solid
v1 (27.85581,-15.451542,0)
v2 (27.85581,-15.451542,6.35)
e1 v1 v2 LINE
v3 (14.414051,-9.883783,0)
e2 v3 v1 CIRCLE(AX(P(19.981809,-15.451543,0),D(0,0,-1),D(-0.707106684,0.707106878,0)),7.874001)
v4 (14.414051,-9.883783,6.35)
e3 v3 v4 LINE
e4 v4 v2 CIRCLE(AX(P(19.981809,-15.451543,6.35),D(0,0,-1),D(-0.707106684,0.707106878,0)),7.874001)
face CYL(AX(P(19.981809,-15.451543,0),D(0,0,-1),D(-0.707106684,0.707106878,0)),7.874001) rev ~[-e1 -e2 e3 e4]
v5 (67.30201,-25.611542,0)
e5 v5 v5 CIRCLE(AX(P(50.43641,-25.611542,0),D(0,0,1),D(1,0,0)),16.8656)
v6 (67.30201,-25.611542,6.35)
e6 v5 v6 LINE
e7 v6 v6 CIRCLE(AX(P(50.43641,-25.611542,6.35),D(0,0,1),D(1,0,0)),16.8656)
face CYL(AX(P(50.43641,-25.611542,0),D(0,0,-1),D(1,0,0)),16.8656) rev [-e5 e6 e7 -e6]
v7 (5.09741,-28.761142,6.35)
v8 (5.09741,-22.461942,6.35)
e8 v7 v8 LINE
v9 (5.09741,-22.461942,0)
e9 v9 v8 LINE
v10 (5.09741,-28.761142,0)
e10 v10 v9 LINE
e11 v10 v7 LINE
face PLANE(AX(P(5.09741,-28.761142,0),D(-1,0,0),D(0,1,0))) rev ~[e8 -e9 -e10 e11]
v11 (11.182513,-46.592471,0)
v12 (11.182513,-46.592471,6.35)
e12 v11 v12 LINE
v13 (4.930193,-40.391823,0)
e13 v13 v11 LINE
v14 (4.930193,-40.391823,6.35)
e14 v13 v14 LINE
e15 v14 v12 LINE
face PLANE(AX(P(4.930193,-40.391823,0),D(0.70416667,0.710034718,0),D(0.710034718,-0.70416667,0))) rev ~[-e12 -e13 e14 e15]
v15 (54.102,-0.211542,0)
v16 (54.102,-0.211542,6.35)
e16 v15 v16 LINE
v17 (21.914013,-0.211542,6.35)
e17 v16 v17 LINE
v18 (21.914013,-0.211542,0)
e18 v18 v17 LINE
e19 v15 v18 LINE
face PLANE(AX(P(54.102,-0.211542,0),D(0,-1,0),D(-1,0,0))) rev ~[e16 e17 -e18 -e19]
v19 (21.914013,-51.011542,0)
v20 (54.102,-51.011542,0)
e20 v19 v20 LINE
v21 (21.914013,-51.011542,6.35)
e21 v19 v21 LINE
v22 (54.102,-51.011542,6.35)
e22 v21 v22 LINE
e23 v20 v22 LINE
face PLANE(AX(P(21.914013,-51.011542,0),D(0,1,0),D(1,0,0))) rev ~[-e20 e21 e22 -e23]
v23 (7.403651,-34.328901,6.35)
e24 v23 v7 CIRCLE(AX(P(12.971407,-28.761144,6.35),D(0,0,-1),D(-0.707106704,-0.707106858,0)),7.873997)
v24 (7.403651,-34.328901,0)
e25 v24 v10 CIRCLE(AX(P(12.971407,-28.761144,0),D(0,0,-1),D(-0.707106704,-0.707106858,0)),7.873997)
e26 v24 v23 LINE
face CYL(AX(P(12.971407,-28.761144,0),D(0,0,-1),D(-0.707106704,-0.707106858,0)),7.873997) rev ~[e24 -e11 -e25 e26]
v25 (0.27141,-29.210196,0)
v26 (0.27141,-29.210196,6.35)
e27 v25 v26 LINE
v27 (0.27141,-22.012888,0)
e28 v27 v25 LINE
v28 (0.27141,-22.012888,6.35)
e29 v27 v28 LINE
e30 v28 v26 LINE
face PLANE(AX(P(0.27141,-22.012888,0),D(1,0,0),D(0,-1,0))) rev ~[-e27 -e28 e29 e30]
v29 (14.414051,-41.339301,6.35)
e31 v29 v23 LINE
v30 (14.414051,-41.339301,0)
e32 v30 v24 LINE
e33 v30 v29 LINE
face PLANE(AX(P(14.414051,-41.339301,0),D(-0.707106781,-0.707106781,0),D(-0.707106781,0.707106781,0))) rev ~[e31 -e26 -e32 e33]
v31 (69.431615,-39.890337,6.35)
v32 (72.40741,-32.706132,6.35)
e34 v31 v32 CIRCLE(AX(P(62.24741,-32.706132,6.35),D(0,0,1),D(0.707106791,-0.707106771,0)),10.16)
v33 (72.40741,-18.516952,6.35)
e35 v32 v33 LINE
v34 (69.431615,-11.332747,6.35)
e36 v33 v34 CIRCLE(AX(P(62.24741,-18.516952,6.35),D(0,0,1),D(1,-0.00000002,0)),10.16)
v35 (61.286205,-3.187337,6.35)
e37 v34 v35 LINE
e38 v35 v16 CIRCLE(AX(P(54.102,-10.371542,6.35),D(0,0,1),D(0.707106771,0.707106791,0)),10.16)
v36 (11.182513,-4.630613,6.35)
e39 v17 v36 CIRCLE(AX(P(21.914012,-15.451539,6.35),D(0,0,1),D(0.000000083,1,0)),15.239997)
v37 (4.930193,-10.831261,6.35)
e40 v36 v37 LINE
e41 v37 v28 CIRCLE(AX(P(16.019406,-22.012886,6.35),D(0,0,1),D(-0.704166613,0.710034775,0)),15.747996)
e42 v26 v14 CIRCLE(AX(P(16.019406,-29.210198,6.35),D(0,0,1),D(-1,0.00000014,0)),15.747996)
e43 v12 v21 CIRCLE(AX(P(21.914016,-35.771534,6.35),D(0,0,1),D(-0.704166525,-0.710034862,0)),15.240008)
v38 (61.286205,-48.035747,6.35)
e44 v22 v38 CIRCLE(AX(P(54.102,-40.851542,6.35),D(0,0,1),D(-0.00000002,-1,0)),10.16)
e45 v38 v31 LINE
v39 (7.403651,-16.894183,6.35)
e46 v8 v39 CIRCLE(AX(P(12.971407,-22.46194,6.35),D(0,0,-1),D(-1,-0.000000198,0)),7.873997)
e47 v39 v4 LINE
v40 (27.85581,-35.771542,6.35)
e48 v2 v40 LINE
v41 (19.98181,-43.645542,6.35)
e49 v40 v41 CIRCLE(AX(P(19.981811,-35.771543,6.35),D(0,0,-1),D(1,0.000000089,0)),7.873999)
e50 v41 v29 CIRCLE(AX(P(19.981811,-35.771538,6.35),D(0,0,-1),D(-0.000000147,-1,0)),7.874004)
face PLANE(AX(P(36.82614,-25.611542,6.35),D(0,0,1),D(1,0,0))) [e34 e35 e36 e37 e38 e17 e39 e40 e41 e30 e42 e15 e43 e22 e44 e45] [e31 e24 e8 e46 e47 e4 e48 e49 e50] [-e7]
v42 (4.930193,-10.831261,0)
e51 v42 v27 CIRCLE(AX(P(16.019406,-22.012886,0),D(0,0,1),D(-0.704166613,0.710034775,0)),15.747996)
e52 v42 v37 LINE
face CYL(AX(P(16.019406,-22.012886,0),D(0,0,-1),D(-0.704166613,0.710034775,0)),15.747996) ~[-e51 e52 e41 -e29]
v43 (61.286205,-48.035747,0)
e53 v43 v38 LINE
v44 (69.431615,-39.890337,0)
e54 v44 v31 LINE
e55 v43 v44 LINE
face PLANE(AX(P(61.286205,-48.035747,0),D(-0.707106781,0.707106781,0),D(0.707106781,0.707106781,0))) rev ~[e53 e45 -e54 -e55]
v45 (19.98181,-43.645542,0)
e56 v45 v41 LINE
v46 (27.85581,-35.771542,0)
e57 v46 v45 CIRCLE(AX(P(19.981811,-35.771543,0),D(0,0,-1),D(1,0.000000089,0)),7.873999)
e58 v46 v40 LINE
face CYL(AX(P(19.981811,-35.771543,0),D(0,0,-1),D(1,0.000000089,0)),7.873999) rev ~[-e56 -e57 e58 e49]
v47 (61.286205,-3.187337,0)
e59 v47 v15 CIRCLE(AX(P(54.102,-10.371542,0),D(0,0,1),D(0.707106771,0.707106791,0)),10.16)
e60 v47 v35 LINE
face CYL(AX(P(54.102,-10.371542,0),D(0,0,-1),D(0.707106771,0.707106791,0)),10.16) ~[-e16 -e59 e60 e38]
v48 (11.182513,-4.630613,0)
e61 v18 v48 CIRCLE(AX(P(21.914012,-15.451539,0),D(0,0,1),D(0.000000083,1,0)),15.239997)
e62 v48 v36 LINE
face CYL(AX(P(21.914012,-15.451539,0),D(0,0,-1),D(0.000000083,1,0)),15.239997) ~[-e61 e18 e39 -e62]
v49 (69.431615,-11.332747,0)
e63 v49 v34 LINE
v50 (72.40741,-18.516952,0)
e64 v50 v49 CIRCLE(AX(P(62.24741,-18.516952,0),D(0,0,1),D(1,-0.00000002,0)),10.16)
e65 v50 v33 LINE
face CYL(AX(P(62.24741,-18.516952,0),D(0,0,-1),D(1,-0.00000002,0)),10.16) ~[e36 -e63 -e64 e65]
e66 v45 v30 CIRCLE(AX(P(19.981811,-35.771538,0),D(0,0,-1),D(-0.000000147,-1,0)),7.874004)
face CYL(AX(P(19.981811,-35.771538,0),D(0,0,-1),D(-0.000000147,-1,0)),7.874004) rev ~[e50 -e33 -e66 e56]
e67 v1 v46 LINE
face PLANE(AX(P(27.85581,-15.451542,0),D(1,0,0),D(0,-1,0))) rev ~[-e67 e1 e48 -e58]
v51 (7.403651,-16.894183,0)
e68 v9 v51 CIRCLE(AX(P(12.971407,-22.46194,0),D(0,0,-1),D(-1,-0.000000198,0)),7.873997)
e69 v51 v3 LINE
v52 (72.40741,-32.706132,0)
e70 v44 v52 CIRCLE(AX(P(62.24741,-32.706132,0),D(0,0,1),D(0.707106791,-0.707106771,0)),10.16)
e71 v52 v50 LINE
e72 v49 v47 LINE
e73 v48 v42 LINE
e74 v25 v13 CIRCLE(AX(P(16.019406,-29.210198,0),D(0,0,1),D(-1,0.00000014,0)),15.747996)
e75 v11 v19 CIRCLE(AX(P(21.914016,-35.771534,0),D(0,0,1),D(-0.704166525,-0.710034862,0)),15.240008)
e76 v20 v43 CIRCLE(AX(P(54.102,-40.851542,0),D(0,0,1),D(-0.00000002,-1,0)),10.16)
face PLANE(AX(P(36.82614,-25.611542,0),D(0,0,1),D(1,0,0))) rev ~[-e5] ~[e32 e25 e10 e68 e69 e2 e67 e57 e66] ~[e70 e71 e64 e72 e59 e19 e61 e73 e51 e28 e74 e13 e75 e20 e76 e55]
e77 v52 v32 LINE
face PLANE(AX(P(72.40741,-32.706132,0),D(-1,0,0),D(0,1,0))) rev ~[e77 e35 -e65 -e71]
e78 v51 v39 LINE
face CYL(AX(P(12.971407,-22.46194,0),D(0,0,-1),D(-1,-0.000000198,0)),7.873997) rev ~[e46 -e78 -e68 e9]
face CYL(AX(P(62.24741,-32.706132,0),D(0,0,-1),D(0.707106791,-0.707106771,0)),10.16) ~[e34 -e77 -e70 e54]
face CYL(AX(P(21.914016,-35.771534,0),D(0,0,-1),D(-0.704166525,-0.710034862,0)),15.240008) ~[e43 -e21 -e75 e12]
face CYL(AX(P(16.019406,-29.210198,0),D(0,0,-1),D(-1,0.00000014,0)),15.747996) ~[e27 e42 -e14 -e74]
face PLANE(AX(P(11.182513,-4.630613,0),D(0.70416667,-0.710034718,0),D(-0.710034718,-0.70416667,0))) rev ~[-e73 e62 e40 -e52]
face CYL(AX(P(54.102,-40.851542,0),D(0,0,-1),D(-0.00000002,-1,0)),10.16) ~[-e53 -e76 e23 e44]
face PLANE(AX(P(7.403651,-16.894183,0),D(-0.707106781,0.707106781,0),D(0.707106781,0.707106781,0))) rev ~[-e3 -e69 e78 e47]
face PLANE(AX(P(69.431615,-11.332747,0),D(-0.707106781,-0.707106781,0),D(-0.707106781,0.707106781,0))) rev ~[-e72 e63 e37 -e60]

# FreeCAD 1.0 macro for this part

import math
import FreeCAD as App
import Part
import Sketcher
from FreeCAD import Vector
Q = App.Units.Quantity

doc = App.newDocument("Part")
body = doc.addObject("PartDesign::Body", "Body")

sketch1 = doc.addObject("Sketcher::SketchObject", "Sketch")
body.addObject(sketch1)
sketch1.AttachmentSupport = (doc.XY_Plane, [""])
sketch1.MapMode = "FlatFace"
sketch1.addGeometry(Part.ArcOfCircle(Part.Circle(Vector(62, -33, 0), Vector(0, 0, 1), 10), math.radians(-45), math.radians(0)), False)
sketch1.addGeometry(Part.LineSegment(Vector(72, -33, 0), Vector(72, -19, 0)), False)
sketch1.addGeometry(Part.ArcOfCircle(Part.Circle(Vector(62, -19, 0), Vector(0, 0, 1), 10), math.radians(0), math.radians(45)), False)
sketch1.addGeometry(Part.LineSegment(Vector(69, -11, 0), Vector(61, -3, 0)), False)
sketch1.addGeometry(Part.ArcOfCircle(Part.Circle(Vector(54, -10, 0), Vector(0, 0, 1), 10), math.radians(45), math.radians(90)), False)
sketch1.addGeometry(Part.LineSegment(Vector(54, 0, 0), Vector(22, 0, 0)), False)
sketch1.addGeometry(Part.ArcOfCircle(Part.Circle(Vector(22, -15, 0), Vector(0, 0, 1), 15), math.radians(90), math.radians(135)), False)
sketch1.addGeometry(Part.LineSegment(Vector(11, -5, 0), Vector(5, -11, 0)), False)
sketch1.addGeometry(Part.ArcOfCircle(Part.Circle(Vector(16, -22, 0), Vector(0, 0, 1), 16), math.radians(135), math.radians(180)), False)
sketch1.addGeometry(Part.LineSegment(Vector(0, -22, 0), Vector(0, -29, 0)), False)
sketch1.addGeometry(Part.ArcOfCircle(Part.Circle(Vector(16, -29, 0), Vector(0, 0, 1), 16), math.radians(180), math.radians(225)), False)
sketch1.addGeometry(Part.LineSegment(Vector(5, -40, 0), Vector(11, -47, 0)), False)
sketch1.addGeometry(Part.ArcOfCircle(Part.Circle(Vector(22, -36, 0), Vector(0, 0, 1), 15), math.radians(-135), math.radians(-90)), False)
sketch1.addGeometry(Part.LineSegment(Vector(22, -51, 0), Vector(54, -51, 0)), False)
sketch1.addGeometry(Part.ArcOfCircle(Part.Circle(Vector(54, -41, 0), Vector(0, 0, 1), 10), math.radians(-90), math.radians(-45)), False)
sketch1.addGeometry(Part.LineSegment(Vector(61, -48, 0), Vector(69, -40, 0)), False)
sketch1.addGeometry(Part.ArcOfCircle(Part.Circle(Vector(20, -15, 0), Vector(0, 0, 1), 8), math.radians(0), math.radians(135)), False)
sketch1.addGeometry(Part.LineSegment(Vector(28, -15, 0), Vector(28, -36, 0)), False)
sketch1.addGeometry(Part.ArcOfCircle(Part.Circle(Vector(20, -36, 0), Vector(0, 0, 1), 8), math.radians(-90), math.radians(0)), False)
sketch1.addGeometry(Part.ArcOfCircle(Part.Circle(Vector(20, -36, 0), Vector(0, 0, 1), 8), math.radians(-135), math.radians(-90)), False)
sketch1.addGeometry(Part.LineSegment(Vector(14, -41, 0), Vector(7, -34, 0)), False)
sketch1.addGeometry(Part.ArcOfCircle(Part.Circle(Vector(13, -29, 0), Vector(0, 0, 1), 8), math.radians(180), math.radians(225)), False)
sketch1.addGeometry(Part.LineSegment(Vector(5, -29, 0), Vector(5, -22, 0)), False)
sketch1.addGeometry(Part.ArcOfCircle(Part.Circle(Vector(13, -22, 0), Vector(0, 0, 1), 8), math.radians(135), math.radians(180)), False)
sketch1.addGeometry(Part.LineSegment(Vector(7, -17, 0), Vector(14, -10, 0)), False)
sketch1.addGeometry(Part.Circle(Vector(50, -26, 0), Vector(0, 0, 1), 17), False)
sketch1.addConstraint(Sketcher.Constraint("Tangent", 0, 2, 1, 1))
sketch1.addConstraint(Sketcher.Constraint("Tangent", 1, 2, 2, 1))
sketch1.addConstraint(Sketcher.Constraint("Tangent", 2, 2, 3, 1))
sketch1.addConstraint(Sketcher.Constraint("Tangent", 3, 2, 4, 1))
sketch1.addConstraint(Sketcher.Constraint("Tangent", 4, 2, 5, 1))
sketch1.addConstraint(Sketcher.Constraint("Tangent", 5, 2, 6, 1))
sketch1.addConstraint(Sketcher.Constraint("Tangent", 6, 2, 7, 1))
sketch1.addConstraint(Sketcher.Constraint("Tangent", 7, 2, 8, 1))
sketch1.addConstraint(Sketcher.Constraint("Tangent", 8, 2, 9, 1))
sketch1.addConstraint(Sketcher.Constraint("Tangent", 9, 2, 10, 1))
sketch1.addConstraint(Sketcher.Constraint("Tangent", 10, 2, 11, 1))
sketch1.addConstraint(Sketcher.Constraint("Tangent", 11, 2, 12, 1))
sketch1.addConstraint(Sketcher.Constraint("Tangent", 12, 2, 13, 1))
sketch1.addConstraint(Sketcher.Constraint("Tangent", 13, 2, 14, 1))
sketch1.addConstraint(Sketcher.Constraint("Tangent", 14, 2, 15, 1))
sketch1.addConstraint(Sketcher.Constraint("Tangent", 15, 2, 0, 1))
sketch1.addConstraint(Sketcher.Constraint("Tangent", 16, 1, 17, 1))
sketch1.addConstraint(Sketcher.Constraint("Tangent", 17, 2, 18, 2))
sketch1.addConstraint(Sketcher.Constraint("Tangent", 18, 1, 19, 2))
sketch1.addConstraint(Sketcher.Constraint("Tangent", 19, 1, 20, 1))
sketch1.addConstraint(Sketcher.Constraint("Tangent", 20, 2, 21, 2))
sketch1.addConstraint(Sketcher.Constraint("Tangent", 21, 1, 22, 1))
sketch1.addConstraint(Sketcher.Constraint("Tangent", 22, 2, 23, 2))
sketch1.addConstraint(Sketcher.Constraint("Tangent", 23, 1, 24, 1))
sketch1.addConstraint(Sketcher.Constraint("Tangent", 24, 2, 16, 2))
sketch1.addConstraint(Sketcher.Constraint("Vertical", 1))
sketch1.addConstraint(Sketcher.Constraint("Horizontal", 5))
sketch1.addConstraint(Sketcher.Constraint("Vertical", 9))
sketch1.addConstraint(Sketcher.Constraint("Horizontal", 13))
sketch1.addConstraint(Sketcher.Constraint("Vertical", 17))
sketch1.addConstraint(Sketcher.Constraint("Vertical", 22))
sketch1.addConstraint(Sketcher.Constraint("Equal", 0, 2))
sketch1.addConstraint(Sketcher.Constraint("Equal", 2, 4))
sketch1.addConstraint(Sketcher.Constraint("Equal", 8, 10))
sketch1.addConstraint(Sketcher.Constraint("Equal", 4, 14))
sketch1.addConstraint(Sketcher.Constraint("Equal", 16, 18))
sketch1.addConstraint(Sketcher.Constraint("Equal", 21, 23))
sketch1.addConstraint(Sketcher.Constraint("Perpendicular", 3, 15))
sketch1.addConstraint(Sketcher.Constraint("Perpendicular", 15, 20))
sketch1.addConstraint(Sketcher.Constraint("Perpendicular", 20, 24))
sketch1.addConstraint(Sketcher.Constraint("Vertical", 4, 3, 14, 3))
sketch1.addConstraint(Sketcher.Constraint("Vertical", 7, 2, 10, 2))
sketch1.addConstraint(Sketcher.Constraint("Vertical", 6, 2, 11, 2))
sketch1.addConstraint(Sketcher.Constraint("Vertical", 5, 2, 12, 2))
sketch1.addConstraint(Sketcher.Constraint("Vertical", 3, 2, 14, 2))
sketch1.addConstraint(Sketcher.Constraint("Vertical", 19, 3, 18, 1))
sketch1.addConstraint(Sketcher.Constraint("Vertical", 19, 1, 24, 2))
sketch1.addConstraint(Sketcher.Constraint("Radius", 0, Q("0.4 in")))
sketch1.addConstraint(Sketcher.Constraint("Radius", 6, Q("0.5999999 in")))
sketch1.addConstraint(Sketcher.Constraint("Radius", 8, Q("0.6199998 in")))
sketch1.addConstraint(Sketcher.Constraint("Radius", 16, Q("0.31 in")))
sketch1.addConstraint(Sketcher.Constraint("Radius", 21, Q("0.3099999 in")))
sketch1.addConstraint(Sketcher.Constraint("Diameter", 25, Q("1.328 in")))
sketch1.addConstraint(Sketcher.Constraint("DistanceY", 17, 2, 17, 1, Q("0.8 in")))
sketch1.addConstraint(Sketcher.Constraint("DistanceY", 25, 3, 4, 2, Q("1 in")))
sketch1.addConstraint(Sketcher.Constraint("DistanceY", 13, 2, 25, 3, Q("1 in")))
sketch1.addConstraint(Sketcher.Constraint("DistanceY", 16, 3, 4, 3, Q("0.2 in")))
sketch1.addConstraint(Sketcher.Constraint("DistanceX", 8, 2, 23, 3, Q("0.4999999 in")))
sketch1.addConstraint(Sketcher.Constraint("DistanceY", 22, 1, 22, 2, Q("0.248 in")))
sketch1.addConstraint(Sketcher.Constraint("DistanceX", -1, 1, 4, 3, Q("2.13 in")))
sketch1.addConstraint(Sketcher.Constraint("DistanceX", 8, 3, 2, 3, Q("1.8200002 in")))
sketch1.addConstraint(Sketcher.Constraint("DistanceX", 25, 3, 2, 3, Q("0.465 in")))
sketch1.addConstraint(Sketcher.Constraint("DistanceX", 6, 2, 5, 2, Q("0.4225 in")))
sketch1.addConstraint(Sketcher.Constraint("DistanceY", 1, 1, 1, 2, Q("14.18918 mm")))
sketch1.addConstraint(Sketcher.Constraint("DistanceY", 10, 3, -1, 1, Q("29.210198 mm")))
sketch1.addConstraint(Sketcher.Constraint("DistanceY", 19, 1, -1, 1, Q("41.339301 mm")))
pad1 = doc.addObject("PartDesign::Pad", "Pad")
body.addObject(pad1)
pad1.Profile = sketch1
pad1.Length = Q("0.25 in")

doc.recompute()
